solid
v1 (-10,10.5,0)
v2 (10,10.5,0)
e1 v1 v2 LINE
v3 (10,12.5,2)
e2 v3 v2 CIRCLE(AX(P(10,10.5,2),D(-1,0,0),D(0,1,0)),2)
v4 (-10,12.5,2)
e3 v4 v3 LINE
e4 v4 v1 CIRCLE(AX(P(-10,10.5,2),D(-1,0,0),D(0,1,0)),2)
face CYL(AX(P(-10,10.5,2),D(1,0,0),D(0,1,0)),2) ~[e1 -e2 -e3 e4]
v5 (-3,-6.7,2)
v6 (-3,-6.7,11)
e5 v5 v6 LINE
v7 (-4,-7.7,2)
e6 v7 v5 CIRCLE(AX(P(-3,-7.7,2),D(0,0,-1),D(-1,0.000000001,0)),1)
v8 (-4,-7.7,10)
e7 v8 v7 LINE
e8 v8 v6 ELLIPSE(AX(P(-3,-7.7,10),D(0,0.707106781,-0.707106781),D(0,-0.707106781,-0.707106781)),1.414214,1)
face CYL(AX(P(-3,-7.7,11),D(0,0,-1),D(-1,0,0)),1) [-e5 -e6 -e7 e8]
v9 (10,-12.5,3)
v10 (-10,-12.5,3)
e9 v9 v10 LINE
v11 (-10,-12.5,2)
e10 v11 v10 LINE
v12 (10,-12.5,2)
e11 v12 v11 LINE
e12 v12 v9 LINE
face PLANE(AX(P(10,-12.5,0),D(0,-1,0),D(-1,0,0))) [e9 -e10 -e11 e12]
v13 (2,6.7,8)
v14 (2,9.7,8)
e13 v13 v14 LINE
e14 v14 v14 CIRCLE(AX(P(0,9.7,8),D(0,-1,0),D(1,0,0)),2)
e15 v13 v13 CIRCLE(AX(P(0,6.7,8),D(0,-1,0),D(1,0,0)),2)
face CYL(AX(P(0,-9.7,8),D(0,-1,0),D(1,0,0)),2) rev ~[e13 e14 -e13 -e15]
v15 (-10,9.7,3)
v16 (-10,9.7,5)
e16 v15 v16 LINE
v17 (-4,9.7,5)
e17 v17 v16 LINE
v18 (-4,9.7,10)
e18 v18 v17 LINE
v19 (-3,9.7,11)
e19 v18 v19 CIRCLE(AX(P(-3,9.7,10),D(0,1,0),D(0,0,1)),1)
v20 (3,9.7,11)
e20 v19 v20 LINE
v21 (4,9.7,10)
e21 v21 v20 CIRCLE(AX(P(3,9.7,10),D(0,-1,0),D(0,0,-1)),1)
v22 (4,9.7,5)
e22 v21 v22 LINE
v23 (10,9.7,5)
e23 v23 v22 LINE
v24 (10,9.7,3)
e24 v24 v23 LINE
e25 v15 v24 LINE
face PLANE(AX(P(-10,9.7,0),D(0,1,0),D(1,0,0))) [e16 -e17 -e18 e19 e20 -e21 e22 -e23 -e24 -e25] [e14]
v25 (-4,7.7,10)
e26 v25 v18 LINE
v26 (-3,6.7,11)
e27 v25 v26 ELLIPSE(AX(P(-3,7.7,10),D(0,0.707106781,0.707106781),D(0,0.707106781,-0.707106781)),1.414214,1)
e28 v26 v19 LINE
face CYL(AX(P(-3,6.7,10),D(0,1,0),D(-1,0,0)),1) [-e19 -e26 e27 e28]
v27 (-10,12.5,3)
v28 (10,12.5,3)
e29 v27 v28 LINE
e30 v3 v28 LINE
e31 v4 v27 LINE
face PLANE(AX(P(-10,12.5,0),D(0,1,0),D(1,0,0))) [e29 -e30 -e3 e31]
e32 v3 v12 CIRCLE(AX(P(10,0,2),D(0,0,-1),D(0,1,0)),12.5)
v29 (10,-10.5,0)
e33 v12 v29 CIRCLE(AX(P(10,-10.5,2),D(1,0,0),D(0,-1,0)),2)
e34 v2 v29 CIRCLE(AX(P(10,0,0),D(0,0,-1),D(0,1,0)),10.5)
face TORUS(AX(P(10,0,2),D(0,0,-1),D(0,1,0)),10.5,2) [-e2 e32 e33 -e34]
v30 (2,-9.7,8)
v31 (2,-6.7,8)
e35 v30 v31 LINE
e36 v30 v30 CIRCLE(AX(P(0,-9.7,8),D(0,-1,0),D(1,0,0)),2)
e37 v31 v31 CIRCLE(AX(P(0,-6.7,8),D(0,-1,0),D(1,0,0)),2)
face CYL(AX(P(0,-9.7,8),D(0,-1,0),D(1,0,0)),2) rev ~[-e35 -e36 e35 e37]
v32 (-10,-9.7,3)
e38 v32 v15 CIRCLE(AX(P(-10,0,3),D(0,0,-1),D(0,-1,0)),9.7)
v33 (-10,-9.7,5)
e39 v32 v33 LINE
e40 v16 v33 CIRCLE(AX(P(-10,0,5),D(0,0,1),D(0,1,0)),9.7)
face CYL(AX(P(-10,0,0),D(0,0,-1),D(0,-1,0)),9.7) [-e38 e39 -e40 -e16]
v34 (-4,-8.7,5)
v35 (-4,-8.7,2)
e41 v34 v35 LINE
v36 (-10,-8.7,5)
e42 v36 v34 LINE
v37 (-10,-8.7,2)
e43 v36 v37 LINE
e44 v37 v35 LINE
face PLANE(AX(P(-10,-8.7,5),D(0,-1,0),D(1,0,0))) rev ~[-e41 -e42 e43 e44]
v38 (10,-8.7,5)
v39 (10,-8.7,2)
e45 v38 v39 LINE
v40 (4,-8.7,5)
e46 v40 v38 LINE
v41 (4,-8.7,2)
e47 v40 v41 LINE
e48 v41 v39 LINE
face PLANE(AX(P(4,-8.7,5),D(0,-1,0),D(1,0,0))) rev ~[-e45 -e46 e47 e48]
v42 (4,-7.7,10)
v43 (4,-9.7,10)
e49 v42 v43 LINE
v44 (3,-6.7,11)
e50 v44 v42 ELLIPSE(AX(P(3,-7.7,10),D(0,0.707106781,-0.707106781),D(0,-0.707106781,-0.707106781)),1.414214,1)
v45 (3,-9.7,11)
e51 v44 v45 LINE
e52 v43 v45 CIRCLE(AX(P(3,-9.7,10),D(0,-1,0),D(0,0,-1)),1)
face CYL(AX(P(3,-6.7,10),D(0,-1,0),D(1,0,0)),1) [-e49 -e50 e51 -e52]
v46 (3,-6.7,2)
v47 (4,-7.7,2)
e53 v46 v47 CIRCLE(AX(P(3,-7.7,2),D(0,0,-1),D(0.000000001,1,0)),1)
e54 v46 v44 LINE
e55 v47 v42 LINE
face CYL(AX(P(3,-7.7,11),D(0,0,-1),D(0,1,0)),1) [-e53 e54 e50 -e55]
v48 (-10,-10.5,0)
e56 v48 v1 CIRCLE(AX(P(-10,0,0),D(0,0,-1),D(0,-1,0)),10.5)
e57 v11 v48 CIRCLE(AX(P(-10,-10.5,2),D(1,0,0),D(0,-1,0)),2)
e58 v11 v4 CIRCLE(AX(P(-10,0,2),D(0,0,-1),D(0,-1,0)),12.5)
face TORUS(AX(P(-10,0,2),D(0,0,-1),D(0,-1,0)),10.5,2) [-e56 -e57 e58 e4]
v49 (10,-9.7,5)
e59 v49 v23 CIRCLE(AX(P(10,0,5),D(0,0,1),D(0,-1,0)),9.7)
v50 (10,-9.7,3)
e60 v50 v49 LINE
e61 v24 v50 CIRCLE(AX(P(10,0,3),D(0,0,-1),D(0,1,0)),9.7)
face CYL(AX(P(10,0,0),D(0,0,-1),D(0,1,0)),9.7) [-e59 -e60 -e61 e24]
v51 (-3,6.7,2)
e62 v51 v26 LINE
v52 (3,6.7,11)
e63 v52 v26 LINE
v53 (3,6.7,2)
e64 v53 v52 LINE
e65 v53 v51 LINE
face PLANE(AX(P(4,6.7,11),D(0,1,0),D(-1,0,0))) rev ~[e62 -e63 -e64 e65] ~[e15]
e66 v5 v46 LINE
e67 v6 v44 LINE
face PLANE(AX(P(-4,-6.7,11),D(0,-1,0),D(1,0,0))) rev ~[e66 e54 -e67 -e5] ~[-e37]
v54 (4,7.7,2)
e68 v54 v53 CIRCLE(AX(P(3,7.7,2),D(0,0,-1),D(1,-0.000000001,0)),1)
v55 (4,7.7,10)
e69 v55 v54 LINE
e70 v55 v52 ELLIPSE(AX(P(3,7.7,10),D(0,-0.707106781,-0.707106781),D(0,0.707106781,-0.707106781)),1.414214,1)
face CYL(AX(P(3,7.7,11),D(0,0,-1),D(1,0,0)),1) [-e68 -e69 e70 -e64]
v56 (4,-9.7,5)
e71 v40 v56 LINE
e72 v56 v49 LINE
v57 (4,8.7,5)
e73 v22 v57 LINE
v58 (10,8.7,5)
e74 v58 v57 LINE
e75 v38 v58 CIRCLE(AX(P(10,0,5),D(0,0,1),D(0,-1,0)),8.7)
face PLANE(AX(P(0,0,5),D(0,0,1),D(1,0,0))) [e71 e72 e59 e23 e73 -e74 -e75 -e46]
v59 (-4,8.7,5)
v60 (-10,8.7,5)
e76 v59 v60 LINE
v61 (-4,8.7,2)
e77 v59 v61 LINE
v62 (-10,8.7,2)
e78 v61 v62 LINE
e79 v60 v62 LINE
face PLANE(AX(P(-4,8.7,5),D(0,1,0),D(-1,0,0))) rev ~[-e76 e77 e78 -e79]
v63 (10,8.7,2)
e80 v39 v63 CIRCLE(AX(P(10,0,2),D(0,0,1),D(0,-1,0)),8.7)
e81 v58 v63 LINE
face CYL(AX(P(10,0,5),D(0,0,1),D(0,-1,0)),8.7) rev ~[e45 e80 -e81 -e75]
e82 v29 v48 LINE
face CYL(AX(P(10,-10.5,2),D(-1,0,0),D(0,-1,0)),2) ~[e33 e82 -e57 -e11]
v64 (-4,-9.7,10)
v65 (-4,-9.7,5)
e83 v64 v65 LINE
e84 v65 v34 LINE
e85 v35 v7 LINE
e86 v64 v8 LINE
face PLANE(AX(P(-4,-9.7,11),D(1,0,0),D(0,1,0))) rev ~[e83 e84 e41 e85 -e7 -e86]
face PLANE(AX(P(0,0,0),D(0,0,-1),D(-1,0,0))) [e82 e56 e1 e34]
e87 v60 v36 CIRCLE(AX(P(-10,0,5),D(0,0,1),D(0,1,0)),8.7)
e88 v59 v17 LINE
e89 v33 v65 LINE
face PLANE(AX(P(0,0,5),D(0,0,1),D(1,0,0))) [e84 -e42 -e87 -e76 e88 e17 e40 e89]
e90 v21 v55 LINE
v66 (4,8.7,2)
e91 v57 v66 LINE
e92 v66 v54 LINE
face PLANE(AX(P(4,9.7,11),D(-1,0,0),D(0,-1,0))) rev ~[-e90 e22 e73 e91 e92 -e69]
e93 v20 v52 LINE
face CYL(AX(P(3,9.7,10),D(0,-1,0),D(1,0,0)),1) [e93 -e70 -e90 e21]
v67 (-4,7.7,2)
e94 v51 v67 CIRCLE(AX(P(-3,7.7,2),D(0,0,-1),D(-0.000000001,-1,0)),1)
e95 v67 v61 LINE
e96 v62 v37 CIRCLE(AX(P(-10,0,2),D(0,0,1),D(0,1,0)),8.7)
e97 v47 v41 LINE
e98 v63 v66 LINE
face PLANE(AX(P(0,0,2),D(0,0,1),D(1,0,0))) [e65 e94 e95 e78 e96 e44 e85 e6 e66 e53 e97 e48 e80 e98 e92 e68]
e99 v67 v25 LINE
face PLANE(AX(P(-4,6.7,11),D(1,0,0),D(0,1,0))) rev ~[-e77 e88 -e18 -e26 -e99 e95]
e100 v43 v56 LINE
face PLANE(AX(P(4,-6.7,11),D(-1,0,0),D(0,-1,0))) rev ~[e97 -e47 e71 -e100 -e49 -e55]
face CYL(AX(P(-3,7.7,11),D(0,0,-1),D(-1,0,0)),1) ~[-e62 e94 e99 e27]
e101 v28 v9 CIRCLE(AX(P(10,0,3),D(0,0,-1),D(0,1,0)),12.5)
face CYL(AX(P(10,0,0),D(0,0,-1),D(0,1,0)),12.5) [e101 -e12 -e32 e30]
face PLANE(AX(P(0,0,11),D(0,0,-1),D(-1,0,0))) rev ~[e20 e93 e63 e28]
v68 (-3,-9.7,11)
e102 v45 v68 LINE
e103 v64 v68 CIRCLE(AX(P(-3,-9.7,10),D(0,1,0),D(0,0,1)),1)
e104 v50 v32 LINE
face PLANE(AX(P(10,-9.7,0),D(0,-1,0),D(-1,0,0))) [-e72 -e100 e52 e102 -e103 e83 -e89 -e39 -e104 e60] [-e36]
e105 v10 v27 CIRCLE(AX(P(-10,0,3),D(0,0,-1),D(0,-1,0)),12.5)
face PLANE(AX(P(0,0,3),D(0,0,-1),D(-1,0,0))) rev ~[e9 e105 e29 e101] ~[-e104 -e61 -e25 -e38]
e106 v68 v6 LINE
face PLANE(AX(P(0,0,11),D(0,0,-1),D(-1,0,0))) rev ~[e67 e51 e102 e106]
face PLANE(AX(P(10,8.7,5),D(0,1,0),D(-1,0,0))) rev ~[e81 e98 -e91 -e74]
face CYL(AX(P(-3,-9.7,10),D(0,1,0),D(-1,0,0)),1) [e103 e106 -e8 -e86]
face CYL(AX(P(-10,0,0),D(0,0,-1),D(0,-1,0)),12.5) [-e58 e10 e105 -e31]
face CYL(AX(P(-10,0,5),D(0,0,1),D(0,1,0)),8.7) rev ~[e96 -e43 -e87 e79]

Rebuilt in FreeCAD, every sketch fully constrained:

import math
import FreeCAD as App
import Part
import Sketcher


def edges_at(feature, points):
    """Names of the edges that pass closest to the given points."""
    edges = feature.Shape.Edges
    near = lambda p: min(range(len(edges)), key=lambda i: edges[i].distToShape(Part.Vertex(*p))[0])
    return sorted({f"Edge{near(p) + 1}" for p in points})

doc = App.newDocument("Part")
body = doc.addObject("PartDesign::Body", "Body")

sketch1 = body.newObject("Sketcher::SketchObject", "Sketch")
sketch1.AttachmentSupport = (doc.getObject("XY_Plane"), [""])
sketch1.MapMode = "FlatFace"
sketch1.addGeometry([
    Part.LineSegment(App.Vector(10, 12, 0), App.Vector(-10, 12, 0)),
    Part.ArcOfCircle(Part.Circle(App.Vector(-10, 0, 0), App.Vector(0, 0, 1), 12), math.radians(90), math.radians(270)),
    Part.LineSegment(App.Vector(-10, -12, 0), App.Vector(10, -12, 0)),
    Part.ArcOfCircle(Part.Circle(App.Vector(10, 0, 0), App.Vector(0, 0, 1), 12), math.radians(-90), math.radians(90)),
    Part.LineSegment(App.Vector(-10, 10, 0), App.Vector(10, 10, 0)),
    Part.ArcOfCircle(Part.Circle(App.Vector(10, 0, 0), App.Vector(0, 0, 1), 10), math.radians(-90), math.radians(90)),
    Part.LineSegment(App.Vector(10, -10, 0), App.Vector(-10, -10, 0)),
    Part.ArcOfCircle(Part.Circle(App.Vector(-10, 0, 0), App.Vector(0, 0, 1), 10), math.radians(90), math.radians(270)),
], False)
sketch1.addConstraint([
    Sketcher.Constraint("Tangent", 0, 2, 1, 1),
    Sketcher.Constraint("Tangent", 1, 2, 2, 1),
    Sketcher.Constraint("Tangent", 2, 2, 3, 1),
    Sketcher.Constraint("Tangent", 3, 2, 0, 1),
    Sketcher.Constraint("Tangent", 4, 2, 5, 2),
    Sketcher.Constraint("Tangent", 5, 1, 6, 1),
    Sketcher.Constraint("Tangent", 6, 2, 7, 2),
    Sketcher.Constraint("Tangent", 7, 1, 4, 1),
    Sketcher.Constraint("Horizontal", 0),
    Sketcher.Constraint("Horizontal", 2),
    Sketcher.Constraint("Horizontal", 4),
    Sketcher.Constraint("Horizontal", 6),
    Sketcher.Constraint("Coincident", 5, 3, 3, 3),
    Sketcher.Constraint("Symmetric", 1, 3, 3, 3, -1, 1),
    Sketcher.Constraint("Vertical", 7, 3, 0, 2),
    Sketcher.Constraint("Radius", 1, 12.5),
    Sketcher.Constraint("Radius", 5, 9.7),
    Sketcher.Constraint("DistanceX", 0, 2, 0, 1, 20.0),
])
pad1 = body.newObject("PartDesign::Pad", "Pad")
pad1.Profile = sketch1
pad1.Length = 3

sketch2 = body.newObject("Sketcher::SketchObject", "Sketch001")
sketch2.AttachmentSupport = (doc.getObject("XY_Plane"), [""])
sketch2.MapMode = "FlatFace"
sketch2.addGeometry([
    Part.LineSegment(App.Vector(10, 10, 0), App.Vector(-10, 10, 0)),
    Part.ArcOfCircle(Part.Circle(App.Vector(-10, 0, 0), App.Vector(0, 0, 1), 10), math.radians(90), math.radians(270)),
    Part.LineSegment(App.Vector(-10, -10, 0), App.Vector(10, -10, 0)),
    Part.ArcOfCircle(Part.Circle(App.Vector(10, 0, 0), App.Vector(0, 0, 1), 10), math.radians(-90), math.radians(90)),
], False)
sketch2.addConstraint([
    Sketcher.Constraint("Tangent", 0, 2, 1, 1),
    Sketcher.Constraint("Tangent", 1, 2, 2, 1),
    Sketcher.Constraint("Tangent", 2, 2, 3, 1),
    Sketcher.Constraint("Tangent", 3, 2, 0, 1),
    Sketcher.Constraint("Horizontal", 0),
    Sketcher.Constraint("Horizontal", 2),
    Sketcher.Constraint("Symmetric", 1, 3, 3, 3, -1, 1),
    Sketcher.Constraint("Radius", 1, 9.7),
    Sketcher.Constraint("DistanceX", 0, 2, 0, 1, 20.0),
])
pad2 = body.newObject("PartDesign::Pad", "Pad001")
pad2.Profile = sketch2
pad2.Length = 11

sketch3 = body.newObject("Sketcher::SketchObject", "Sketch002")
sketch3.AttachmentSupport = (doc.getObject("XY_Plane"), [""])
sketch3.MapMode = "FlatFace"
sketch3.AttachmentOffset = App.Placement(App.Vector(0, 0, 11), App.Rotation())
sketch3.addGeometry([
    Part.LineSegment(App.Vector(-10, -9.7, 0), App.Vector(-4, -9.7, 0)),
    Part.LineSegment(App.Vector(-4, -9.7, 0), App.Vector(-4, -6.7, 0)),
    Part.LineSegment(App.Vector(-4, -6.7, 0), App.Vector(4, -6.7, 0)),
    Part.LineSegment(App.Vector(4, -6.7, 0), App.Vector(4, -9.7, 0)),
    Part.LineSegment(App.Vector(4, -9.7, 0), App.Vector(10, -9.7, 0)),
    Part.ArcOfCircle(Part.Circle(App.Vector(10, 0, 0), App.Vector(0, 0, 1), 9.7), math.radians(-90), math.radians(90)),
    Part.LineSegment(App.Vector(10, 9.7, 0), App.Vector(4, 9.7, 0)),
    Part.LineSegment(App.Vector(4, 9.7, 0), App.Vector(4, 6.7, 0)),
    Part.LineSegment(App.Vector(4, 6.7, 0), App.Vector(-4, 6.7, 0)),
    Part.LineSegment(App.Vector(-4, 6.7, 0), App.Vector(-4, 9.7, 0)),
    Part.LineSegment(App.Vector(-4, 9.7, 0), App.Vector(-10, 9.7, 0)),
    Part.ArcOfCircle(Part.Circle(App.Vector(-10, 0, 0), App.Vector(0, 0, 1), 9.7), math.radians(90), math.radians(270)),
], False)
sketch3.addConstraint([
    Sketcher.Constraint("Coincident", 0, 2, 1, 1),
    Sketcher.Constraint("Coincident", 1, 2, 2, 1),
    Sketcher.Constraint("Coincident", 2, 2, 3, 1),
    Sketcher.Constraint("Coincident", 3, 2, 4, 1),
    Sketcher.Constraint("Tangent", 4, 2, 5, 1),
    Sketcher.Constraint("Tangent", 5, 2, 6, 1),
    Sketcher.Constraint("Coincident", 6, 2, 7, 1),
    Sketcher.Constraint("Coincident", 7, 2, 8, 1),
    Sketcher.Constraint("Coincident", 8, 2, 9, 1),
    Sketcher.Constraint("Coincident", 9, 2, 10, 1),
    Sketcher.Constraint("Tangent", 10, 2, 11, 1),
    Sketcher.Constraint("Tangent", 11, 2, 0, 1),
    Sketcher.Constraint("Horizontal", 0),
    Sketcher.Constraint("Vertical", 1),
    Sketcher.Constraint("Horizontal", 2),
    Sketcher.Constraint("Vertical", 3),
    Sketcher.Constraint("Horizontal", 4),
    Sketcher.Constraint("Horizontal", 6),
    Sketcher.Constraint("Vertical", 7),
    Sketcher.Constraint("Horizontal", 8),
    Sketcher.Constraint("Vertical", 9),
    Sketcher.Constraint("Horizontal", 10),
    Sketcher.Constraint("Equal", 5, 11),
    Sketcher.Constraint("Symmetric", 5, 3, 11, 3, -1, 1),
    Sketcher.Constraint("Symmetric", 1, 2, 7, 2, -1, 1),
    Sketcher.Constraint("Symmetric", 0, 2, 3, 2, -2),
    Sketcher.Constraint("Vertical", 1, 2, 8, 2),
    Sketcher.Constraint("Radius", 5, 9.7),
    Sketcher.Constraint("DistanceX", 0, 1, 0, 2, 6.0),
    Sketcher.Constraint("DistanceX", 2, 1, 2, 2, 8.0),
    Sketcher.Constraint("DistanceY", 1, 1, 1, 2, 3.0),
])
pocket1 = body.newObject("PartDesign::Pocket", "Pocket")
pocket1.Profile = sketch3
pocket1.Length = 6

sketch4 = body.newObject("Sketcher::SketchObject", "Sketch003")
sketch4.AttachmentSupport = (doc.getObject("XZ_Plane"), [""])
sketch4.MapMode = "FlatFace"
sketch4.AttachmentOffset = App.Placement(App.Vector(0, 0, 9.7), App.Rotation())
sketch4.addGeometry(Part.Circle(App.Vector(0, 8, 0), App.Vector(0, 0, 1), 2), False)
sketch4.addConstraint([
    Sketcher.Constraint("PointOnObject", 0, 3, -2),
    Sketcher.Constraint("Diameter", 0, 4.0),
    Sketcher.Constraint("DistanceY", -1, 1, 0, 3, 8.0),
])
pocket2 = body.newObject("PartDesign::Pocket", "Pocket001")
pocket2.Profile = sketch4
pocket2.Type = "ThroughAll"
doc.recompute()

fillet = body.newObject("PartDesign::Fillet", "Fillet")
fillet.Base = (pocket2, edges_at(pocket2, [
    (-4, 6.7, 8),
    (4, 6.7, 8),
    (4, -6.7, 8),
    (-4, -6.7, 8),
    (-4, -8.2, 11),
    (4, -8.2, 11),
    (4, 8.2, 11),
    (-4, 8.2, 11),
]))
fillet.Radius = 1
doc.recompute()

fillet2 = body.newObject("PartDesign::Fillet", "Fillet001")
fillet2.Base = (fillet, edges_at(fillet, [
    (0, 12.5, 0),
    (22.5, 0, 0),
    (0, -12.5, 0),
    (-22.5, 0, 0),
]))
fillet2.Radius = 2

sketch5 = body.newObject("Sketcher::SketchObject", "Sketch004")
sketch5.AttachmentSupport = (doc.getObject("XY_Plane"), [""])
sketch5.MapMode = "FlatFace"
sketch5.AttachmentOffset = App.Placement(App.Vector(0, 0, 5), App.Rotation())
sketch5.addGeometry([
    Part.LineSegment(App.Vector(-10, -8.7, 0), App.Vector(-4, -8.7, 0)),
    Part.LineSegment(App.Vector(-4, -8.7, 0), App.Vector(-4, -7.7, 0)),
    Part.ArcOfCircle(Part.Circle(App.Vector(-3, -7.7, 0), App.Vector(0, 0, 1), 1), math.radians(90), math.radians(180)),
    Part.LineSegment(App.Vector(-3, -6.7, 0), App.Vector(3, -6.7, 0)),
    Part.ArcOfCircle(Part.Circle(App.Vector(3, -7.7, 0), App.Vector(0, 0, 1), 1), math.radians(0), math.radians(90)),
    Part.LineSegment(App.Vector(4, -7.7, 0), App.Vector(4, -8.7, 0)),
    Part.LineSegment(App.Vector(4, -8.7, 0), App.Vector(10, -8.7, 0)),
    Part.ArcOfCircle(Part.Circle(App.Vector(10, 0, 0), App.Vector(0, 0, 1), 8.7), math.radians(-90), math.radians(90)),
    Part.LineSegment(App.Vector(10, 8.7, 0), App.Vector(4, 8.7, 0)),
    Part.LineSegment(App.Vector(4, 8.7, 0), App.Vector(4, 7.7, 0)),
    Part.ArcOfCircle(Part.Circle(App.Vector(3, 7.7, 0), App.Vector(0, 0, 1), 1), math.radians(-90), math.radians(0)),
    Part.LineSegment(App.Vector(3, 6.7, 0), App.Vector(-3, 6.7, 0)),
    Part.ArcOfCircle(Part.Circle(App.Vector(-3, 7.7, 0), App.Vector(0, 0, 1), 1), math.radians(-180), math.radians(-90)),
    Part.LineSegment(App.Vector(-4, 7.7, 0), App.Vector(-4, 8.7, 0)),
    Part.LineSegment(App.Vector(-4, 8.7, 0), App.Vector(-10, 8.7, 0)),
    Part.ArcOfCircle(Part.Circle(App.Vector(-10, 0, 0), App.Vector(0, 0, 1), 8.7), math.radians(90), math.radians(270)),
], False)
sketch5.addConstraint([
    Sketcher.Constraint("Coincident", 0, 2, 1, 1),
    Sketcher.Constraint("Tangent", 1, 2, 2, 2),
    Sketcher.Constraint("Tangent", 2, 1, 3, 1),
    Sketcher.Constraint("Tangent", 3, 2, 4, 2),
    Sketcher.Constraint("Tangent", 4, 1, 5, 1),
    Sketcher.Constraint("Coincident", 5, 2, 6, 1),
    Sketcher.Constraint("Tangent", 6, 2, 7, 1),
    Sketcher.Constraint("Tangent", 7, 2, 8, 1),
    Sketcher.Constraint("Coincident", 8, 2, 9, 1),
    Sketcher.Constraint("Tangent", 9, 2, 10, 2),
    Sketcher.Constraint("Tangent", 10, 1, 11, 1),
    Sketcher.Constraint("Tangent", 11, 2, 12, 2),
    Sketcher.Constraint("Tangent", 12, 1, 13, 1),
    Sketcher.Constraint("Coincident", 13, 2, 14, 1),
    Sketcher.Constraint("Tangent", 14, 2, 15, 1),
    Sketcher.Constraint("Tangent", 15, 2, 0, 1),
    Sketcher.Constraint("Horizontal", 0),
    Sketcher.Constraint("Vertical", 1),
    Sketcher.Constraint("Horizontal", 3),
    Sketcher.Constraint("Vertical", 5),
    Sketcher.Constraint("Horizontal", 6),
    Sketcher.Constraint("Horizontal", 8),
    Sketcher.Constraint("Vertical", 9),
    Sketcher.Constraint("Horizontal", 11),
    Sketcher.Constraint("Vertical", 13),
    Sketcher.Constraint("Horizontal", 14),
    Sketcher.Constraint("Equal", 2, 4),
    Sketcher.Constraint("Equal", 4, 10),
    Sketcher.Constraint("Equal", 10, 12),
    Sketcher.Constraint("Equal", 7, 15),
    Sketcher.Constraint("Symmetric", 2, 3, 10, 3, -1, 1),
    Sketcher.Constraint("Symmetric", 7, 3, 15, 3, -1, 1),
    Sketcher.Constraint("Symmetric", 0, 2, 5, 2, -2),
    Sketcher.Constraint("Vertical", 2, 3, 12, 3),
    Sketcher.Constraint("Equal", 0, 3),
    Sketcher.Constraint("Radius", 2, 1.0),
    Sketcher.Constraint("Radius", 7, 8.7),
    Sketcher.Constraint("DistanceX", 0, 1, 0, 2, 6.0),
    Sketcher.Constraint("DistanceY", 1, 1, 1, 2, 1.0),
])
pocket3 = body.newObject("PartDesign::Pocket", "Pocket002")
pocket3.Profile = sketch5
pocket3.Length = 3

doc.recompute()
